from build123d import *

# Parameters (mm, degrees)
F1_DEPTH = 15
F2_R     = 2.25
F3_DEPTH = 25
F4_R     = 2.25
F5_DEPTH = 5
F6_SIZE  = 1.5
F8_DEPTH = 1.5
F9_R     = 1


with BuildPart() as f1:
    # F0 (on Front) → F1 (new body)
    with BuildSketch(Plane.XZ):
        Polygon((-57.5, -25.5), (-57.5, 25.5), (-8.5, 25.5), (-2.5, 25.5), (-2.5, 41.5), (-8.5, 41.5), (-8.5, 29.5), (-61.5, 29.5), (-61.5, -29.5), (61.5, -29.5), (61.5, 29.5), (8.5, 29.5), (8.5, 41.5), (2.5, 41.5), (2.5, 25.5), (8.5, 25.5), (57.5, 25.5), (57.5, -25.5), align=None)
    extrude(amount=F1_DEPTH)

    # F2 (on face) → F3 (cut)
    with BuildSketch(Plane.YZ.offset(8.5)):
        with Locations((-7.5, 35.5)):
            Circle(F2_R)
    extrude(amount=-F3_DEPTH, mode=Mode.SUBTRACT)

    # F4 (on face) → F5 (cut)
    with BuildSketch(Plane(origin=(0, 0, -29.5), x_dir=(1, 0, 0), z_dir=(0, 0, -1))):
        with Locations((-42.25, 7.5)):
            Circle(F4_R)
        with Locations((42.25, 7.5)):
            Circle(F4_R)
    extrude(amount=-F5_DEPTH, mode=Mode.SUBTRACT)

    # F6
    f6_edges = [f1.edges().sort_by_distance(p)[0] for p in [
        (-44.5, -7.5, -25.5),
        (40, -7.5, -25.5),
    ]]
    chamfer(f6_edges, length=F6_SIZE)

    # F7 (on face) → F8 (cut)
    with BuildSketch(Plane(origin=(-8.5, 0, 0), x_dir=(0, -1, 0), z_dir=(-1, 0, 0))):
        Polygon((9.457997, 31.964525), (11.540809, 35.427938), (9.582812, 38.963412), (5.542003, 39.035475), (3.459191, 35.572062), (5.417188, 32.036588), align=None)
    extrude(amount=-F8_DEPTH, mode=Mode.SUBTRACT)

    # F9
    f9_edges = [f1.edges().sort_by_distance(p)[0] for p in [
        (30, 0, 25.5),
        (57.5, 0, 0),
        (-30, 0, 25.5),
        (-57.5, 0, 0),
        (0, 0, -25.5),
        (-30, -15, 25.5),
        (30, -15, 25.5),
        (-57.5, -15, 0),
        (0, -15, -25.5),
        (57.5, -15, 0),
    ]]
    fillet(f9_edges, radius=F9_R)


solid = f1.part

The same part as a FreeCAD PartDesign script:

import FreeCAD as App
import Part
import Sketcher
from FreeCAD import Vector
Q = App.Units.Quantity


def edges_at(feature, points):
    """Names of the edges that pass closest to the given points."""
    edges = feature.Shape.Edges
    near = lambda p: min(range(len(edges)), key=lambda i: edges[i].distToShape(Part.Vertex(*p))[0])
    return sorted({f"Edge{near(p) + 1}" for p in points})


def add_polygon(sketch, points):
    """Adds a closed chain of lines whose ends are joined by coincident constraints."""
    first, n = sketch.GeometryCount, len(points)
    for a, b in zip(points, points[1:] + points[:1]):
        sketch.addGeometry(Part.LineSegment(App.Vector(*a, 0), App.Vector(*b, 0)), False)
    for i in range(n):
        sketch.addConstraint(Sketcher.Constraint("Coincident", first + i, 2, first + (i + 1) % n, 1))

doc = App.newDocument("Part")
body = doc.addObject("PartDesign::Body", "Body")

# Sketch on XZ plane
sketch1 = body.newObject("Sketcher::SketchObject", "Sketch")
sketch1.AttachmentSupport = (doc.getObject("XZ_Plane"), [""])
sketch1.MapMode = "FlatFace"
add_polygon(sketch1, [(-58, -26), (-58, 26), (-2, 26), (-2, 42), (-8, 42), (-8, 30), (-62, 30), (-62, -30), (62, -30), (62, 30), (8, 30), (8, 42), (2, 42), (2, 26), (58, 26), (58, -26)])  # lines 0-15
sketch1.addConstraint([
    Sketcher.Constraint("Vertical", 0),
    Sketcher.Constraint("Horizontal", 1),
    Sketcher.Constraint("Vertical", 2),
    Sketcher.Constraint("Horizontal", 3),
    Sketcher.Constraint("Vertical", 4),
    Sketcher.Constraint("Horizontal", 5),
    Sketcher.Constraint("Vertical", 6),
    Sketcher.Constraint("Horizontal", 7),
    Sketcher.Constraint("Vertical", 8),
    Sketcher.Constraint("Horizontal", 9),
    Sketcher.Constraint("Vertical", 10),
    Sketcher.Constraint("Horizontal", 11),
    Sketcher.Constraint("Vertical", 12),
    Sketcher.Constraint("Horizontal", 13),
    Sketcher.Constraint("Vertical", 14),
    Sketcher.Constraint("Horizontal", 15),
    Sketcher.Constraint("Symmetric", 5, 2, 7, 2, -1, 1),
    Sketcher.Constraint("Symmetric", 0, 2, 14, 2, -1, 1),
    Sketcher.Constraint("Symmetric", 4, 2, 9, 2, -2),
    Sketcher.Constraint("Symmetric", 2, 2, 11, 2, -2),
    Sketcher.Constraint("Horizontal", 1, 2, 12, 2),
    Sketcher.Constraint("DistanceX", 1, 1, 1, 2, Q("55 mm")),
    Sketcher.Constraint("DistanceX", 3, 2, 3, 1, Q("6 mm")),
    Sketcher.Constraint("DistanceX", 5, 2, 5, 1, Q("53 mm")),
    Sketcher.Constraint("DistanceX", 7, 1, 7, 2, Q("123 mm")),
    Sketcher.Constraint("DistanceY", 0, 1, 0, 2, Q("51 mm")),
    Sketcher.Constraint("DistanceY", 2, 1, 2, 2, Q("16 mm")),
    Sketcher.Constraint("DistanceY", 4, 2, 4, 1, Q("12 mm")),
])
pad1 = body.newObject("PartDesign::Pad", "Pad")
pad1.Profile = sketch1
pad1.Length = 15

# Sketch on YZ plane
sketch2 = body.newObject("Sketcher::SketchObject", "Sketch001")
sketch2.AttachmentSupport = (doc.getObject("YZ_Plane"), [""])
sketch2.MapMode = "FlatFace"
sketch2.AttachmentOffset = App.Placement(Vector(0, 0, 8.5), App.Rotation())
sketch2.addGeometry(Part.Circle(Vector(-7.5, 35.5, 0), Vector(0, 0, 1), 2.2), False)
sketch2.addConstraint([
    Sketcher.Constraint("Diameter", 0, Q("4.5 mm")),
    Sketcher.Constraint("DistanceX", 0, 3, -1, 1, Q("7.5 mm")),
    Sketcher.Constraint("DistanceY", -1, 1, 0, 3, Q("35.5 mm")),
])
pocket1 = body.newObject("PartDesign::Pocket", "Pocket")
pocket1.Profile = sketch2
pocket1.Length = 25

# Sketch on XY plane
sketch3 = body.newObject("Sketcher::SketchObject", "Sketch002")
sketch3.AttachmentSupport = (doc.getObject("XY_Plane"), [""])
sketch3.MapMode = "FlatFace"
sketch3.AttachmentOffset = App.Placement(Vector(0, 0, -29.5), App.Rotation())
sketch3.addGeometry([
    Part.Circle(Vector(-42.2, -7.5, 0), Vector(0, 0, 1), 2.2),
    Part.Circle(Vector(42.2, -7.5, 0), Vector(0, 0, 1), 2.2),
], False)
sketch3.addConstraint([
    Sketcher.Constraint("Equal", 0, 1),
    Sketcher.Constraint("Symmetric", 0, 3, 1, 3, -2),
    Sketcher.Constraint("Diameter", 0, Q("4.5 mm")),
    Sketcher.Constraint("DistanceY", 0, 3, -1, 1, Q("7.5 mm")),
    Sketcher.Constraint("DistanceX", 0, 3, 1, 3, Q("84.5 mm")),
])
pocket2 = body.newObject("PartDesign::Pocket", "Pocket001")
pocket2.Profile = sketch3
pocket2.Length = 5
pocket2.Reversed = True
doc.recompute()

chamfer = body.newObject("PartDesign::Chamfer", "Chamfer")
chamfer.Base = (pocket2, edges_at(pocket2, [(-44.5, -7.5, -25.5), (40, -7.5, -25.5)]))
chamfer.Size = 1.5

# Sketch on YZ plane
sketch4 = body.newObject("Sketcher::SketchObject", "Sketch003")
sketch4.AttachmentSupport = (doc.getObject("YZ_Plane"), [""])
sketch4.MapMode = "FlatFace"
sketch4.AttachmentOffset = App.Placement(Vector(0, 0, -8.5), App.Rotation())
add_polygon(sketch4, [(-9.5, 32), (-11.5, 35.4), (-9.6, 39), (-5.5, 39), (-3.5, 35.6), (-5.4, 32)])  # lines 0-5
sketch4.addConstraint([
    Sketcher.Constraint("Parallel", 0, 3),
    Sketcher.Constraint("Parallel", 1, 4),
    Sketcher.Constraint("Parallel", 2, 5),
    Sketcher.Constraint("Equal", 0, 1),
    Sketcher.Constraint("Equal", 1, 2),
    Sketcher.Constraint("Equal", 2, 3),
    Sketcher.Constraint("Distance", 1, Q("4.041451 mm")),
    Sketcher.Constraint("DistanceX", 0, 2, -1, 1, Q("11.540809 mm")),
    Sketcher.Constraint("DistanceY", -1, 1, 1, 2, Q("38.963412 mm")),
    Sketcher.Constraint("DistanceX", 3, 2, -1, 1, Q("3.459191 mm")),
    Sketcher.Constraint("DistanceX", 4, 2, -1, 1, Q("5.417188 mm")),
    Sketcher.Constraint("DistanceY", -1, 1, 4, 2, Q("32.036588 mm")),
])
pocket3 = body.newObject("PartDesign::Pocket", "Pocket002")
pocket3.Profile = sketch4
pocket3.Length = 1.5
pocket3.Reversed = True
doc.recompute()

fillet = body.newObject("PartDesign::Fillet", "Fillet")
fillet.Base = (pocket3, edges_at(pocket3, [
    (30, 0, 25.5),
    (57.5, 0, 0),
    (-30, 0, 25.5),
    (-57.5, 0, 0),
    (0, 0, -25.5),
    (-30, -15, 25.5),
    (30, -15, 25.5),
    (-57.5, -15, 0),
    (0, -15, -25.5),
    (57.5, -15, 0),
]))
fillet.Radius = 1

doc.recompute()
